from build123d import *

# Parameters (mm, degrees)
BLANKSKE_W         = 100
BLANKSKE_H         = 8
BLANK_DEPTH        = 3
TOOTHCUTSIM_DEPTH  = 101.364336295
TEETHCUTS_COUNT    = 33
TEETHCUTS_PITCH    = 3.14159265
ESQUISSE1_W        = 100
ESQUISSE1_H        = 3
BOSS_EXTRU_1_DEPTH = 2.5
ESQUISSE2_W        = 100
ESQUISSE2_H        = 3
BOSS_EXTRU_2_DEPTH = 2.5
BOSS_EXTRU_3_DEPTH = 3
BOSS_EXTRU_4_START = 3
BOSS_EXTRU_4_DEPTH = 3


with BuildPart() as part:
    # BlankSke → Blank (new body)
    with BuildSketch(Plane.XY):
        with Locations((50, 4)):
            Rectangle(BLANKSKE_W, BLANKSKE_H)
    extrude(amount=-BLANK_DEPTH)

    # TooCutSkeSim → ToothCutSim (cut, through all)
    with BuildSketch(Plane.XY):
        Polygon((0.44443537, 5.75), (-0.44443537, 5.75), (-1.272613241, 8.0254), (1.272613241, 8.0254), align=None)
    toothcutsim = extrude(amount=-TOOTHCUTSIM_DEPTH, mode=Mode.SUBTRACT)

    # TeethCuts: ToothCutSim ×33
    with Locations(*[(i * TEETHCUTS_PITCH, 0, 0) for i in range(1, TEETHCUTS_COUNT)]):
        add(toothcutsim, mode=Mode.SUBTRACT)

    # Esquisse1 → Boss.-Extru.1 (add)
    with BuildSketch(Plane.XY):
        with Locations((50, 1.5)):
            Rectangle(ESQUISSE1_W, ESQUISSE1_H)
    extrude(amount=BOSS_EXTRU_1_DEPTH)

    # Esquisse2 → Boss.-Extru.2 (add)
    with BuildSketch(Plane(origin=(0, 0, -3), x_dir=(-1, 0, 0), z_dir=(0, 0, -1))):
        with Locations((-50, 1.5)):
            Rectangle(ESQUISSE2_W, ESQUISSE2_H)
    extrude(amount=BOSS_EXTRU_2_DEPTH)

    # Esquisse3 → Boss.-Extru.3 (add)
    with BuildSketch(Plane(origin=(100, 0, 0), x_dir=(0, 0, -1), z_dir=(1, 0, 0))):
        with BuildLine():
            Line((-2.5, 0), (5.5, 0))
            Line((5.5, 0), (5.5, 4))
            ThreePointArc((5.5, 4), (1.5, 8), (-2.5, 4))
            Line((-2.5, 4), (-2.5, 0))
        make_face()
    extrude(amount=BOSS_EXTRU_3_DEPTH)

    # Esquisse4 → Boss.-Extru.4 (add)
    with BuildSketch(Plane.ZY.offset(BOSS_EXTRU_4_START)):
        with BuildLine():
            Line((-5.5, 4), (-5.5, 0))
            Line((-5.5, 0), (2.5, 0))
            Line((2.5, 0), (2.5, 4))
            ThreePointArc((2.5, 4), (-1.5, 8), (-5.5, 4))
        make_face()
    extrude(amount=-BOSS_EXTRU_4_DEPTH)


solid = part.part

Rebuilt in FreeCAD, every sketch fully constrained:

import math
import FreeCAD as App
import Part
import Sketcher

V = App.Vector
Q = App.Units.Quantity

doc = App.newDocument("Part")
body = doc.addObject("PartDesign::Body", "Body")

# Sketch on XY plane
sketch1 = doc.addObject("Sketcher::SketchObject", "Sketch")
body.addObject(sketch1)
sketch1.AttachmentSupport = (doc.XY_Plane, [""])
sketch1.MapMode = "FlatFace"
sketch1.addGeometry(Part.LineSegment(V(0, 8, 0), V(0, 0, 0)), False)
sketch1.addGeometry(Part.LineSegment(V(0, 0, 0), V(100, 0, 0)), False)
sketch1.addGeometry(Part.LineSegment(V(100, 0, 0), V(100, 8, 0)), False)
sketch1.addGeometry(Part.LineSegment(V(100, 8, 0), V(0, 8, 0)), False)
sketch1.addConstraint(Sketcher.Constraint("Coincident", 0, 2, 1, 1))
sketch1.addConstraint(Sketcher.Constraint("Coincident", 1, 2, 2, 1))
sketch1.addConstraint(Sketcher.Constraint("Coincident", 2, 2, 3, 1))
sketch1.addConstraint(Sketcher.Constraint("Coincident", 3, 2, 0, 1))
sketch1.addConstraint(Sketcher.Constraint("Vertical", 0))
sketch1.addConstraint(Sketcher.Constraint("Horizontal", 1))
sketch1.addConstraint(Sketcher.Constraint("Vertical", 2))
sketch1.addConstraint(Sketcher.Constraint("Horizontal", 3))
sketch1.addConstraint(Sketcher.Constraint("Coincident", 0, 2, -1, 1))
sketch1.addConstraint(Sketcher.Constraint("DistanceX", 1, 1, 1, 2, Q("100 mm")))
sketch1.addConstraint(Sketcher.Constraint("DistanceY", 0, 2, 0, 1, Q("8 mm")))
pad1 = doc.addObject("PartDesign::Pad", "Pad")
body.addObject(pad1)
pad1.Profile = sketch1
pad1.Length = 3
pad1.Reversed = True

# Sketch on XY plane
sketch2 = doc.addObject("Sketcher::SketchObject", "Sketch001")
body.addObject(sketch2)
sketch2.AttachmentSupport = (doc.XY_Plane, [""])
sketch2.MapMode = "FlatFace"
sketch2.addGeometry(Part.LineSegment(V(-0.444435, 5.75, 0), V(0.444435, 5.75, 0)), False)
sketch2.addGeometry(Part.LineSegment(V(0.444435, 5.75, 0), V(1.272613, 8.0254, 0)), False)
sketch2.addGeometry(Part.LineSegment(V(1.272613, 8.0254, 0), V(-1.272613, 8.0254, 0)), False)
sketch2.addGeometry(Part.LineSegment(V(-1.272613, 8.0254, 0), V(-0.444435, 5.75, 0)), False)
sketch2.addConstraint(Sketcher.Constraint("Coincident", 0, 2, 1, 1))
sketch2.addConstraint(Sketcher.Constraint("Coincident", 1, 2, 2, 1))
sketch2.addConstraint(Sketcher.Constraint("Coincident", 2, 2, 3, 1))
sketch2.addConstraint(Sketcher.Constraint("Coincident", 3, 2, 0, 1))
sketch2.addConstraint(Sketcher.Constraint("Horizontal", 0))
sketch2.addConstraint(Sketcher.Constraint("Horizontal", 2))
sketch2.addConstraint(Sketcher.Constraint("Equal", 1, 3))
sketch2.addConstraint(Sketcher.Constraint("Angle", 1, Q("70 deg")))
sketch2.addConstraint(Sketcher.Constraint("DistanceY", -1, 1, 0, 2, Q("5.75 mm")))
sketch2.addConstraint(Sketcher.Constraint("DistanceX", 0, 1, 0, 2, Q("0.888871 mm")))
sketch2.addConstraint(Sketcher.Constraint("DistanceY", -1, 1, 1, 2, Q("8.0254 mm")))
sketch2.addConstraint(Sketcher.Constraint("DistanceX", -1, 1, 0, 2, Q("0.444435 mm")))
pocket1 = doc.addObject("PartDesign::Pocket", "Pocket")
body.addObject(pocket1)
pocket1.Profile = sketch2
pocket1.Type = "ThroughAll"
doc.recompute()

linearpattern = doc.addObject("PartDesign::LinearPattern", "LinearPattern")
body.addObject(linearpattern)
linearpattern.Originals = [pocket1]
linearpattern.Direction = (doc.X_Axis, [""])
linearpattern.Mode = "offset"
linearpattern.Offset = 3.141593
linearpattern.Occurrences = 33
body.Tip = linearpattern

# Sketch on XY plane
sketch3 = doc.addObject("Sketcher::SketchObject", "Sketch002")
body.addObject(sketch3)
sketch3.AttachmentSupport = (doc.XY_Plane, [""])
sketch3.MapMode = "FlatFace"
sketch3.addGeometry(Part.LineSegment(V(0, 3, 0), V(0, 0, 0)), False)
sketch3.addGeometry(Part.LineSegment(V(0, 0, 0), V(100, 0, 0)), False)
sketch3.addGeometry(Part.LineSegment(V(100, 0, 0), V(100, 3, 0)), False)
sketch3.addGeometry(Part.LineSegment(V(100, 3, 0), V(0, 3, 0)), False)
sketch3.addConstraint(Sketcher.Constraint("Coincident", 0, 2, 1, 1))
sketch3.addConstraint(Sketcher.Constraint("Coincident", 1, 2, 2, 1))
sketch3.addConstraint(Sketcher.Constraint("Coincident", 2, 2, 3, 1))
sketch3.addConstraint(Sketcher.Constraint("Coincident", 3, 2, 0, 1))
sketch3.addConstraint(Sketcher.Constraint("Vertical", 0))
sketch3.addConstraint(Sketcher.Constraint("Horizontal", 1))
sketch3.addConstraint(Sketcher.Constraint("Vertical", 2))
sketch3.addConstraint(Sketcher.Constraint("Horizontal", 3))
sketch3.addConstraint(Sketcher.Constraint("Coincident", 0, 2, -1, 1))
sketch3.addConstraint(Sketcher.Constraint("DistanceX", 1, 1, 1, 2, Q("100 mm")))
sketch3.addConstraint(Sketcher.Constraint("DistanceY", 0, 2, 0, 1, Q("3 mm")))
pad2 = doc.addObject("PartDesign::Pad", "Pad001")
body.addObject(pad2)
pad2.Profile = sketch3
pad2.Length = 2.5

# Sketch on XY plane
sketch4 = doc.addObject("Sketcher::SketchObject", "Sketch003")
body.addObject(sketch4)
sketch4.AttachmentSupport = (doc.XY_Plane, [""])
sketch4.MapMode = "FlatFace"
sketch4.AttachmentOffset = App.Placement(V(0, 0, -3), App.Rotation())
sketch4.addGeometry(Part.LineSegment(V(100, 3, 0), V(100, 0, 0)), False)
sketch4.addGeometry(Part.LineSegment(V(100, 0, 0), V(0, 0, 0)), False)
sketch4.addGeometry(Part.LineSegment(V(0, 0, 0), V(0, 3, 0)), False)
sketch4.addGeometry(Part.LineSegment(V(0, 3, 0), V(100, 3, 0)), False)
sketch4.addConstraint(Sketcher.Constraint("Coincident", 0, 2, 1, 1))
sketch4.addConstraint(Sketcher.Constraint("Coincident", 1, 2, 2, 1))
sketch4.addConstraint(Sketcher.Constraint("Coincident", 2, 2, 3, 1))
sketch4.addConstraint(Sketcher.Constraint("Coincident", 3, 2, 0, 1))
sketch4.addConstraint(Sketcher.Constraint("Vertical", 0))
sketch4.addConstraint(Sketcher.Constraint("Horizontal", 1))
sketch4.addConstraint(Sketcher.Constraint("Vertical", 2))
sketch4.addConstraint(Sketcher.Constraint("Horizontal", 3))
sketch4.addConstraint(Sketcher.Constraint("Coincident", 1, 2, -1, 1))
sketch4.addConstraint(Sketcher.Constraint("DistanceX", 1, 2, 1, 1, Q("100 mm")))
sketch4.addConstraint(Sketcher.Constraint("DistanceY", 0, 2, 0, 1, Q("3 mm")))
pad3 = doc.addObject("PartDesign::Pad", "Pad002")
body.addObject(pad3)
pad3.Profile = sketch4
pad3.Length = 2.5
pad3.Reversed = True

# Sketch on YZ plane
sketch5 = doc.addObject("Sketcher::SketchObject", "Sketch004")
body.addObject(sketch5)
sketch5.AttachmentSupport = (doc.YZ_Plane, [""])
sketch5.MapMode = "FlatFace"
sketch5.AttachmentOffset = App.Placement(V(0, 0, 100), App.Rotation())
sketch5.addGeometry(Part.LineSegment(V(0, 2.5, 0), V(0, -5.5, 0)), False)
sketch5.addGeometry(Part.LineSegment(V(0, -5.5, 0), V(4, -5.5, 0)), False)
sketch5.addGeometry(Part.ArcOfCircle(Part.Circle(V(4, -1.5, 0), V(0, 0, 1), 4), math.radians(-90), math.radians(90)), False)
sketch5.addGeometry(Part.LineSegment(V(4, 2.5, 0), V(0, 2.5, 0)), False)
sketch5.addConstraint(Sketcher.Constraint("Coincident", 0, 2, 1, 1))
sketch5.addConstraint(Sketcher.Constraint("Tangent", 1, 2, 2, 1))
sketch5.addConstraint(Sketcher.Constraint("Tangent", 2, 2, 3, 1))
sketch5.addConstraint(Sketcher.Constraint("Coincident", 3, 2, 0, 1))
sketch5.addConstraint(Sketcher.Constraint("Vertical", 0))
sketch5.addConstraint(Sketcher.Constraint("Horizontal", 1))
sketch5.addConstraint(Sketcher.Constraint("Horizontal", 3))
sketch5.addConstraint(Sketcher.Constraint("PointOnObject", 0, 2, -2))
sketch5.addConstraint(Sketcher.Constraint("Radius", 2, Q("4 mm")))
sketch5.addConstraint(Sketcher.Constraint("DistanceX", 1, 1, 1, 2, Q("4 mm")))
sketch5.addConstraint(Sketcher.Constraint("DistanceY", 2, 3, -1, 1, Q("1.5 mm")))
pad4 = doc.addObject("PartDesign::Pad", "Pad003")
body.addObject(pad4)
pad4.Profile = sketch5
pad4.Length = 3

# Sketch on YZ plane
sketch6 = doc.addObject("Sketcher::SketchObject", "Sketch005")
body.addObject(sketch6)
sketch6.AttachmentSupport = (doc.YZ_Plane, [""])
sketch6.MapMode = "FlatFace"
sketch6.AttachmentOffset = App.Placement(V(0, 0, -3), App.Rotation())
sketch6.addGeometry(Part.LineSegment(V(4, -5.5, 0), V(0, -5.5, 0)), False)
sketch6.addGeometry(Part.LineSegment(V(0, -5.5, 0), V(0, 2.5, 0)), False)
sketch6.addGeometry(Part.LineSegment(V(0, 2.5, 0), V(4, 2.5, 0)), False)
sketch6.addGeometry(Part.ArcOfCircle(Part.Circle(V(4, -1.5, 0), V(0, 0, 1), 4), math.radians(-90), math.radians(90)), False)
sketch6.addConstraint(Sketcher.Constraint("Coincident", 0, 2, 1, 1))
sketch6.addConstraint(Sketcher.Constraint("Coincident", 1, 2, 2, 1))
sketch6.addConstraint(Sketcher.Constraint("Tangent", 2, 2, 3, 2))
sketch6.addConstraint(Sketcher.Constraint("Tangent", 3, 1, 0, 1))
sketch6.addConstraint(Sketcher.Constraint("Horizontal", 0))
sketch6.addConstraint(Sketcher.Constraint("Vertical", 1))
sketch6.addConstraint(Sketcher.Constraint("Horizontal", 2))
sketch6.addConstraint(Sketcher.Constraint("PointOnObject", 0, 2, -2))
sketch6.addConstraint(Sketcher.Constraint("Radius", 3, Q("4 mm")))
sketch6.addConstraint(Sketcher.Constraint("DistanceX", 0, 2, 0, 1, Q("4 mm")))
sketch6.addConstraint(Sketcher.Constraint("DistanceY", 3, 3, -1, 1, Q("1.5 mm")))
pad5 = doc.addObject("PartDesign::Pad", "Pad004")
body.addObject(pad5)
pad5.Profile = sketch6
pad5.Length = 3

doc.recompute()
